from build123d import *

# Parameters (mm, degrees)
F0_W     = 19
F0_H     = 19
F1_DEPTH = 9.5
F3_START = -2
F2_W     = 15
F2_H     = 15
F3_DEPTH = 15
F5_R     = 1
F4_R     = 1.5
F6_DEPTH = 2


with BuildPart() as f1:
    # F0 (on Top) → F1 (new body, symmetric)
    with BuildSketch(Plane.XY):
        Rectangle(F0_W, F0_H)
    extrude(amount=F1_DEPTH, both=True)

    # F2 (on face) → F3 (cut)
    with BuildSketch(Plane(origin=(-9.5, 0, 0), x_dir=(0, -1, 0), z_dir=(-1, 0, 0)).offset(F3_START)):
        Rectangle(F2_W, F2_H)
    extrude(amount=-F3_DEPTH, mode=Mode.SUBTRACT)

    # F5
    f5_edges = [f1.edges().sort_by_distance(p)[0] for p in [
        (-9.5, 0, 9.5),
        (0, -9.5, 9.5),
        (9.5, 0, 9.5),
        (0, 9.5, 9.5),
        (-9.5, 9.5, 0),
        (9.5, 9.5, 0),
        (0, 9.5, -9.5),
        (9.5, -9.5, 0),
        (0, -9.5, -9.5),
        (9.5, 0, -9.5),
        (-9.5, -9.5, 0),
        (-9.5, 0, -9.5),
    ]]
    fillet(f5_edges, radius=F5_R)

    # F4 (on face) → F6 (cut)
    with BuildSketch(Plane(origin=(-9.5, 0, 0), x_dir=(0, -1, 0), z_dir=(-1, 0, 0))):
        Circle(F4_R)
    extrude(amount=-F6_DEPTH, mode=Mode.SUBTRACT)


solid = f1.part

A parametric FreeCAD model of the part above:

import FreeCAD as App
import Part
import Sketcher
from FreeCAD import Vector


def edges_at(feature, points):
    """Names of the edges that pass closest to the given points."""
    edges = feature.Shape.Edges
    near = lambda p: min(range(len(edges)), key=lambda i: edges[i].distToShape(Part.Vertex(*p))[0])
    return sorted({f"Edge{near(p) + 1}" for p in points})


def add_polygon(sketch, points):
    """Adds a closed chain of lines whose ends are joined by coincident constraints."""
    first, n = sketch.GeometryCount, len(points)
    for a, b in zip(points, points[1:] + points[:1]):
        sketch.addGeometry(Part.LineSegment(App.Vector(*a, 0), App.Vector(*b, 0)), False)
    for i in range(n):
        sketch.addConstraint(Sketcher.Constraint("Coincident", first + i, 2, first + (i + 1) % n, 1))

doc = App.newDocument("Part")
body = doc.addObject("PartDesign::Body", "Body")

# Sketch on XY plane
sketch1 = body.newObject("Sketcher::SketchObject", "Sketch")
sketch1.AttachmentSupport = (doc.getObject("XY_Plane"), [""])
sketch1.MapMode = "FlatFace"
add_polygon(sketch1, [(-9.5, 9.5), (-9.5, -9.5), (9.5, -9.5), (9.5, 9.5)])  # lines 0-3
sketch1.addConstraint([
    Sketcher.Constraint("Vertical", 0),
    Sketcher.Constraint("Horizontal", 1),
    Sketcher.Constraint("Vertical", 2),
    Sketcher.Constraint("Horizontal", 3),
    Sketcher.Constraint("Symmetric", 0, 2, 2, 2, -1, 1),
    Sketcher.Constraint("Equal", 3, 0),
    Sketcher.Constraint("DistanceX", 1, 1, 1, 2, 19.0),
])
pad1 = body.newObject("PartDesign::Pad", "Pad")
pad1.Profile = sketch1
pad1.Length = 19
pad1.Midplane = True

# Sketch on YZ plane
sketch2 = body.newObject("Sketcher::SketchObject", "Sketch001")
sketch2.AttachmentSupport = (doc.getObject("YZ_Plane"), [""])
sketch2.MapMode = "FlatFace"
sketch2.AttachmentOffset = App.Placement(Vector(0, 0, -7.5), App.Rotation())
add_polygon(sketch2, [(7.5, 7.5), (7.5, -7.5), (-7.5, -7.5), (-7.5, 7.5)])  # lines 0-3
sketch2.addConstraint([
    Sketcher.Constraint("Vertical", 0),
    Sketcher.Constraint("Horizontal", 1),
    Sketcher.Constraint("Vertical", 2),
    Sketcher.Constraint("Horizontal", 3),
    Sketcher.Constraint("Symmetric", 0, 2, 2, 2, -1, 1),
    Sketcher.Constraint("Equal", 3, 0),
    Sketcher.Constraint("DistanceX", 1, 2, 1, 1, 15.0),
])
pocket1 = body.newObject("PartDesign::Pocket", "Pocket")
pocket1.Profile = sketch2
pocket1.Length = 15
pocket1.Reversed = True
doc.recompute()

fillet = body.newObject("PartDesign::Fillet", "Fillet")
fillet.Base = (pocket1, edges_at(pocket1, [
    (-9.5, 0, 9.5),
    (0, -9.5, 9.5),
    (9.5, 0, 9.5),
    (0, 9.5, 9.5),
    (-9.5, 9.5, 0),
    (9.5, 9.5, 0),
    (0, 9.5, -9.5),
    (9.5, -9.5, 0),
    (0, -9.5, -9.5),
    (9.5, 0, -9.5),
    (-9.5, -9.5, 0),
    (-9.5, 0, -9.5),
]))
fillet.Radius = 1

# Sketch on YZ plane
sketch3 = body.newObject("Sketcher::SketchObject", "Sketch002")
sketch3.AttachmentSupport = (doc.getObject("YZ_Plane"), [""])
sketch3.MapMode = "FlatFace"
sketch3.AttachmentOffset = App.Placement(Vector(0, 0, -9.5), App.Rotation())
sketch3.addGeometry(Part.Circle(Vector(0, 0, 0), Vector(0, 0, 1), 1.5), False)
sketch3.addConstraint([
    Sketcher.Constraint("Coincident", 0, 3, -1, 1),
    Sketcher.Constraint("Diameter", 0, 3.0),
])
pocket2 = body.newObject("PartDesign::Pocket", "Pocket001")
pocket2.Profile = sketch3
pocket2.Length = 2
pocket2.Reversed = True

doc.recompute()
